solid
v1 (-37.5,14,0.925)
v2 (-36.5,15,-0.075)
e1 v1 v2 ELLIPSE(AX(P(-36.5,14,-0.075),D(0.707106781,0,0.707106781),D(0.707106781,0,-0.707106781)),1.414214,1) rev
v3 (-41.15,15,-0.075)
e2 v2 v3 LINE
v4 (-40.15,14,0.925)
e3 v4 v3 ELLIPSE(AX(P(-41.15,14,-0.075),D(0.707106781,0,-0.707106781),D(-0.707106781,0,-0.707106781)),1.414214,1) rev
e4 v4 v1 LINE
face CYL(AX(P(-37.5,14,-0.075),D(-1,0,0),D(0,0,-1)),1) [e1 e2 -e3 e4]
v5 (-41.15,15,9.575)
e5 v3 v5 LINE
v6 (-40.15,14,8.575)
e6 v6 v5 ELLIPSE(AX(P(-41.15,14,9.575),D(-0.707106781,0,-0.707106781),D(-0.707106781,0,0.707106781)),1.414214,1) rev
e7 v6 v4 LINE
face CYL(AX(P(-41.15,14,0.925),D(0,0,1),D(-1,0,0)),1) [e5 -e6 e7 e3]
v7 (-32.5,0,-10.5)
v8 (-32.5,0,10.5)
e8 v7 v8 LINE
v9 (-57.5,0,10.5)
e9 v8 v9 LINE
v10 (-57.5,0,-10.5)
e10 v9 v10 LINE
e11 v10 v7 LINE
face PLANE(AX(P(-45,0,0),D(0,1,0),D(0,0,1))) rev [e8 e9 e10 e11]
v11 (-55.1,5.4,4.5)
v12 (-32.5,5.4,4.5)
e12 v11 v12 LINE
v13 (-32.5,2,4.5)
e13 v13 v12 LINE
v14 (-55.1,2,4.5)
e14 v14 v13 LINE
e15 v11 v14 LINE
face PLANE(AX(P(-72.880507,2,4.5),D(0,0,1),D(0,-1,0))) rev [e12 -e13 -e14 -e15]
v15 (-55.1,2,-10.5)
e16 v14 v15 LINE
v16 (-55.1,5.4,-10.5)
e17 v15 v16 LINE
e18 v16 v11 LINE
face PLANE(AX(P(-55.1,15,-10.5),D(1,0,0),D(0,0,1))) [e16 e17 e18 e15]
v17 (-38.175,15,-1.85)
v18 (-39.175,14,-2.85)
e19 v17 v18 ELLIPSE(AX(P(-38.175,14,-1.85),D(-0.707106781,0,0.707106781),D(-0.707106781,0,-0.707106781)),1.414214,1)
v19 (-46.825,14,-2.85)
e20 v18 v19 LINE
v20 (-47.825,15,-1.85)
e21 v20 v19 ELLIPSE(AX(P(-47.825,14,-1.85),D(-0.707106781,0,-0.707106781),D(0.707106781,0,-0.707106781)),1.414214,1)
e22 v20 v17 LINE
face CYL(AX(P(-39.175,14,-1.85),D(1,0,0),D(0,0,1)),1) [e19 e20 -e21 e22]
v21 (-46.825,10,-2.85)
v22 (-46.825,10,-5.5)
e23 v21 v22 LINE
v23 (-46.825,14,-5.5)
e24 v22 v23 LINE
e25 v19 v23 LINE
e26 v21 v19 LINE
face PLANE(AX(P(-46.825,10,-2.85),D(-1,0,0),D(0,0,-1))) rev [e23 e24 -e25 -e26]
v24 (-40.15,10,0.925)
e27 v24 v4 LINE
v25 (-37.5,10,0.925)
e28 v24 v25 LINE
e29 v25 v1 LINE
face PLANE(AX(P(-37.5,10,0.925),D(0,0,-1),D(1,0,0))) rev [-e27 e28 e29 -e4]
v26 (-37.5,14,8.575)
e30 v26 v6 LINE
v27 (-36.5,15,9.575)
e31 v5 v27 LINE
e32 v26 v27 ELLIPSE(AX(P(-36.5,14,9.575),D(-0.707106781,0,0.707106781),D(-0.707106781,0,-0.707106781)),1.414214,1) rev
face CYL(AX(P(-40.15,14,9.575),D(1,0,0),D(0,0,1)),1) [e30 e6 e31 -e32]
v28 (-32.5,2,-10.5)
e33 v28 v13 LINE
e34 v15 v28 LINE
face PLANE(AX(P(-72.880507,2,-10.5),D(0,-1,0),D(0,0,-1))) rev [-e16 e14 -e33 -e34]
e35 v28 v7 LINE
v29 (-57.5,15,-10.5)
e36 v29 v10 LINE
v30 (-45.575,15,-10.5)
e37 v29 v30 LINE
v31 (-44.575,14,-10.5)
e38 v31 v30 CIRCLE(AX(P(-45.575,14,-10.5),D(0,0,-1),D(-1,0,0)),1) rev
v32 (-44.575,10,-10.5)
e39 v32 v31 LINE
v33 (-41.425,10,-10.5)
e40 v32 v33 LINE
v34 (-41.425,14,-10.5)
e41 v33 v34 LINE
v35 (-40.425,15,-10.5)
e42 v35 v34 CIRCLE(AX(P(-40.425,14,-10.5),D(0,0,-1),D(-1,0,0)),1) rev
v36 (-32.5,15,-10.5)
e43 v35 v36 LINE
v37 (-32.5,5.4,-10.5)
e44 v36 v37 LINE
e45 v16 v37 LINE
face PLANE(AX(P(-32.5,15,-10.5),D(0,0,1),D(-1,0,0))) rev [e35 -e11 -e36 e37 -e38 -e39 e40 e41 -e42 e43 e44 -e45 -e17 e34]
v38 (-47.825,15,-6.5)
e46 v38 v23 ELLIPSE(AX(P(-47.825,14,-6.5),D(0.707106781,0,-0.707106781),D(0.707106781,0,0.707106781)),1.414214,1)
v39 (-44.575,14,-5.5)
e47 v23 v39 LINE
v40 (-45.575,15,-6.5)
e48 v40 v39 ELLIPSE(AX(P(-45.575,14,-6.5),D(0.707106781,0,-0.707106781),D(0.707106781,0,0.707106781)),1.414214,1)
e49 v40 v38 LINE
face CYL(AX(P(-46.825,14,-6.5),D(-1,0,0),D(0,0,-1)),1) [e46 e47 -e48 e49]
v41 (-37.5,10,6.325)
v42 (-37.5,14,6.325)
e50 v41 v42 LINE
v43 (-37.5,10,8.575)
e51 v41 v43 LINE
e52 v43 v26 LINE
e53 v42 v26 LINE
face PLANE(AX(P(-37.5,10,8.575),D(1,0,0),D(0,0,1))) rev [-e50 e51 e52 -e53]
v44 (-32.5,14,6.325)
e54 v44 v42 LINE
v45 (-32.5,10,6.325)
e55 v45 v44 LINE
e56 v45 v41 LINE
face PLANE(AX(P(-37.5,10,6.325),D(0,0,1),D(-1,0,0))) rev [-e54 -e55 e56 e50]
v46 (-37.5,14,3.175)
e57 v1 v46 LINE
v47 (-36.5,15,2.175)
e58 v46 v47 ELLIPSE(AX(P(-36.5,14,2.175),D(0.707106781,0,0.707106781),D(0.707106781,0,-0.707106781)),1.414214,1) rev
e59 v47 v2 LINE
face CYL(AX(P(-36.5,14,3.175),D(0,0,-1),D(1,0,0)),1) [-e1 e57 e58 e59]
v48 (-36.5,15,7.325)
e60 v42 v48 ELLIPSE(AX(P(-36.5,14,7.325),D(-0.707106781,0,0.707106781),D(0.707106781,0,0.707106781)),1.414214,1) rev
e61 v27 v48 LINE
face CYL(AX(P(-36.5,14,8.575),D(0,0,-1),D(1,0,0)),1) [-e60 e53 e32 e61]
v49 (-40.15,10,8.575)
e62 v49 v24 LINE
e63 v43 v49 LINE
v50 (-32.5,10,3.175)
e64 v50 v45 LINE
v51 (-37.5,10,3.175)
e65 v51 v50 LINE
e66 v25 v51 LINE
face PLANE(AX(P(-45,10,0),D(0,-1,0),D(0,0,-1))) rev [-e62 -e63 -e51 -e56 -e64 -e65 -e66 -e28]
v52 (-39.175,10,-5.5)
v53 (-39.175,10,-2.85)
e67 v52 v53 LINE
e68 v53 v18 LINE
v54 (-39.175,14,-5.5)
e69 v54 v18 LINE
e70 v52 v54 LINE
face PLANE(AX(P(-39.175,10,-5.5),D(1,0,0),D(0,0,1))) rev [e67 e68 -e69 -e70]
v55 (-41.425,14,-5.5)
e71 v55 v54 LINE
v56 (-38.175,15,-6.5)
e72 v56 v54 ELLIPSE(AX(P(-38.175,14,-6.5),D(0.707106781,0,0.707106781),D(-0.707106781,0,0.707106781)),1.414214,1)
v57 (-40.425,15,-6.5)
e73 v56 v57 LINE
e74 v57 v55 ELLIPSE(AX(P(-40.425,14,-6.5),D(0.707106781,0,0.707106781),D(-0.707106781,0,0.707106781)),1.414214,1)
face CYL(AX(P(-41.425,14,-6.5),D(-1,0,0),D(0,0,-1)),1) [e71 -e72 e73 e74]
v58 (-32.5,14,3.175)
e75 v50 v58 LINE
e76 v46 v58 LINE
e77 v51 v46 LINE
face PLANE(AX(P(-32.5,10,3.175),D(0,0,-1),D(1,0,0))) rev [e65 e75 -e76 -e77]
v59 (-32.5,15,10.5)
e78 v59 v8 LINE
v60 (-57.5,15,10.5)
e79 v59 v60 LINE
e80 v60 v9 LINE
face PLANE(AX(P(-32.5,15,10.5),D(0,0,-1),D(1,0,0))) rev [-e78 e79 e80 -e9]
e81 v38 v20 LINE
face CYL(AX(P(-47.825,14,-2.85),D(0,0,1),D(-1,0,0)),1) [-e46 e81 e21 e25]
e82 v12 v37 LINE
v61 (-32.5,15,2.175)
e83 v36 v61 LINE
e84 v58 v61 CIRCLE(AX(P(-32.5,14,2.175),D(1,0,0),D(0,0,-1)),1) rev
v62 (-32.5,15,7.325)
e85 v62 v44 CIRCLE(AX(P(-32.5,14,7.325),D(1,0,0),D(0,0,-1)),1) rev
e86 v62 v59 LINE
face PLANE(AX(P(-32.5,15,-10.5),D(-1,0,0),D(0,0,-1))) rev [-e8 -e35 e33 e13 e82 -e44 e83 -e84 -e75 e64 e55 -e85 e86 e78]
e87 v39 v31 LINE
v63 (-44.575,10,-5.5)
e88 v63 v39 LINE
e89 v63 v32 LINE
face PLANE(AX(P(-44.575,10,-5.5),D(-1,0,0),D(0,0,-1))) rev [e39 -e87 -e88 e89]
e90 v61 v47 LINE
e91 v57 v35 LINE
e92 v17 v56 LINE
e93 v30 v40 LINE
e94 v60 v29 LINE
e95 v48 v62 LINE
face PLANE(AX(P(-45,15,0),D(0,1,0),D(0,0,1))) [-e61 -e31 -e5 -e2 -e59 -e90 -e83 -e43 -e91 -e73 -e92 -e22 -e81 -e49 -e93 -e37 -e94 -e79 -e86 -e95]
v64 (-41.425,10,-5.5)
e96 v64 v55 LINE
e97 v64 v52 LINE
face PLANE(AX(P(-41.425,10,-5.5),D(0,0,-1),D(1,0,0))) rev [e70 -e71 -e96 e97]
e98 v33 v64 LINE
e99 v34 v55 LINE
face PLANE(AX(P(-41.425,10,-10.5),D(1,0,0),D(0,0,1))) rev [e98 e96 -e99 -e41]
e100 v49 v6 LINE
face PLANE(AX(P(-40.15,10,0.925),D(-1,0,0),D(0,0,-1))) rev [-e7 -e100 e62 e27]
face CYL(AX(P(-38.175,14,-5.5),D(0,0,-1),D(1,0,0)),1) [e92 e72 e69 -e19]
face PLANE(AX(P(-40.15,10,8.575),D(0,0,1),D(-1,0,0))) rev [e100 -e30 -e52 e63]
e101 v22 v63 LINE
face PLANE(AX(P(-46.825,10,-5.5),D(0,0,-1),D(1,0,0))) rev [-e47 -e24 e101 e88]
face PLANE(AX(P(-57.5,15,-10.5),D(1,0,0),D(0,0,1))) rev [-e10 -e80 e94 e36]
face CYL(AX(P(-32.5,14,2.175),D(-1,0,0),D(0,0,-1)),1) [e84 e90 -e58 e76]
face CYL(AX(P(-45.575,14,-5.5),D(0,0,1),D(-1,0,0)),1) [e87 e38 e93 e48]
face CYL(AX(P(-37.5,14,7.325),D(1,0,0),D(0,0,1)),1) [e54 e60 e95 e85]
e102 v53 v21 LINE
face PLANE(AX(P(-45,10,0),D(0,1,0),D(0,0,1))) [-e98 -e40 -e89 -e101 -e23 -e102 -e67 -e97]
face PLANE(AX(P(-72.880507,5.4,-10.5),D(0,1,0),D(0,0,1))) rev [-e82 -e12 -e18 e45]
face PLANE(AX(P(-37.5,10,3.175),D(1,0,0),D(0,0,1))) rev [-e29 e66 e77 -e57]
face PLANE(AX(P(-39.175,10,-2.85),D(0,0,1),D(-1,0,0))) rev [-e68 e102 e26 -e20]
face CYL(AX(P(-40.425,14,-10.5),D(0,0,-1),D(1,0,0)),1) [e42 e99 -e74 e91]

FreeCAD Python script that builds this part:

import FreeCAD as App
import Part
import Sketcher
Q = App.Units.Quantity


def edges_at(feature, points):
    """Names of the edges that pass closest to the given points."""
    edges = feature.Shape.Edges
    near = lambda p: min(range(len(edges)), key=lambda i: edges[i].distToShape(Part.Vertex(*p))[0])
    return sorted({f"Edge{near(p) + 1}" for p in points})


def add_polygon(sketch, points):
    """Adds a closed chain of lines whose ends are joined by coincident constraints."""
    first, n = sketch.GeometryCount, len(points)
    for a, b in zip(points, points[1:] + points[:1]):
        sketch.addGeometry(Part.LineSegment(App.Vector(*a, 0), App.Vector(*b, 0)), False)
    for i in range(n):
        sketch.addConstraint(Sketcher.Constraint("Coincident", first + i, 2, first + (i + 1) % n, 1))

doc = App.newDocument("Part")
body = doc.addObject("PartDesign::Body", "Body")

sketch1 = doc.addObject("Sketcher::SketchObject", "Sketch")
body.addObject(sketch1)
sketch1.AttachmentSupport = (doc.XZ_Plane, [""])
sketch1.MapMode = "FlatFace"
add_polygon(sketch1, [(-12, -10), (-12, 10), (12, 10), (12, -10)])
sketch1.addConstraint([
    Sketcher.Constraint("Vertical", 0),
    Sketcher.Constraint("Horizontal", 1),
    Sketcher.Constraint("Vertical", 2),
    Sketcher.Constraint("Horizontal", 3),
    Sketcher.Constraint("Symmetric", 0, 2, 2, 2, -1, 1),
    Sketcher.Constraint("DistanceX", 1, 1, 1, 2, Q("25 mm")),
    Sketcher.Constraint("DistanceY", 0, 1, 0, 2, Q("21 mm")),
])
pad1 = doc.addObject("PartDesign::Pad", "Pad")
body.addObject(pad1)
pad1.Profile = sketch1
pad1.Length = 15
pad1.Reversed = True

sketch2 = doc.addObject("Sketcher::SketchObject", "Sketch001")
body.addObject(sketch2)
sketch2.AttachmentSupport = (doc.YZ_Plane, [""])
sketch2.MapMode = "FlatFace"
sketch2.AttachmentOffset = App.Placement(App.Vector(0, 0, -12.5), App.Rotation())
add_polygon(sketch2, [(5.4, -10.5), (2, -10.5), (2, 4.5), (5.4, 4.5)])
sketch2.addConstraint([
    Sketcher.Constraint("Horizontal", 0),
    Sketcher.Constraint("Vertical", 1),
    Sketcher.Constraint("Horizontal", 2),
    Sketcher.Constraint("Vertical", 3),
    Sketcher.Constraint("DistanceY", 1, 1, 1, 2, Q("15 mm")),
    Sketcher.Constraint("DistanceX", 0, 2, 0, 1, Q("3.4 mm")),
    Sketcher.Constraint("DistanceX", -1, 1, 0, 2, Q("2 mm")),
    Sketcher.Constraint("DistanceY", 0, 2, -1, 1, Q("10.5 mm")),
])
pocket1 = doc.addObject("PartDesign::Pocket", "Pocket")
body.addObject(pocket1)
pocket1.Profile = sketch2
pocket1.Length = 22.6
pocket1.Reversed = True

sketch3 = doc.addObject("Sketcher::SketchObject", "Sketch002")
body.addObject(sketch3)
sketch3.AttachmentSupport = (doc.XZ_Plane, [""])
sketch3.MapMode = "FlatFace"
sketch3.AttachmentOffset = App.Placement(App.Vector(0, 0, -15), App.Rotation())
add_polygon(sketch3, [(-4.8, 8.6), (-4.8, 0.9), (-7.5, 0.9), (-7.5, 3.2), (-12.5, 3.2), (-12.5, 6.3), (-7.5, 6.3), (-7.5, 8.6)])
add_polygon(sketch3, [(-3.6, -10.5), (-3.6, -5.5), (-5.8, -5.5), (-5.8, -2.9), (1.8, -2.9), (1.8, -5.5), (-0.4, -5.5), (-0.4, -10.5)])
sketch3.addConstraint([
    Sketcher.Constraint("Vertical", 0),
    Sketcher.Constraint("Horizontal", 1),
    Sketcher.Constraint("Vertical", 2),
    Sketcher.Constraint("Horizontal", 3),
    Sketcher.Constraint("Vertical", 4),
    Sketcher.Constraint("Horizontal", 5),
    Sketcher.Constraint("Vertical", 6),
    Sketcher.Constraint("Horizontal", 7),
    Sketcher.Constraint("Vertical", 8),
    Sketcher.Constraint("Horizontal", 9),
    Sketcher.Constraint("Vertical", 10),
    Sketcher.Constraint("Horizontal", 11),
    Sketcher.Constraint("Vertical", 12),
    Sketcher.Constraint("Horizontal", 13),
    Sketcher.Constraint("Vertical", 14),
    Sketcher.Constraint("Horizontal", 15),
    Sketcher.Constraint("Horizontal", 9, 2, 12, 2),
    Sketcher.Constraint("Vertical", 2, 2, 5, 2),
    Sketcher.Constraint("Equal", 9, 13),
    Sketcher.Constraint("Equal", 11, 0),
    Sketcher.Constraint("Equal", 13, 2),
    Sketcher.Constraint("Equal", 15, 4),
    Sketcher.Constraint("Equal", 5, 8),
    Sketcher.Constraint("Equal", 7, 10),
    Sketcher.Constraint("DistanceX", 3, 2, 3, 1, Q("5 mm")),
    Sketcher.Constraint("DistanceX", 1, 2, 1, 1, Q("2.65 mm")),
    Sketcher.Constraint("DistanceX", 9, 2, 9, 1, Q("2.25 mm")),
    Sketcher.Constraint("DistanceX", 11, 1, 11, 2, Q("7.65 mm")),
    Sketcher.Constraint("DistanceX", 1, 2, -1, 1, Q("7.5 mm")),
    Sketcher.Constraint("DistanceY", 8, 2, -1, 1, Q("5.5 mm")),
    Sketcher.Constraint("DistanceY", -1, 1, 0, 2, Q("0.925 mm")),
    Sketcher.Constraint("DistanceX", 8, 2, -1, 1, Q("3.575 mm")),
])
pocket2 = doc.addObject("PartDesign::Pocket", "Pocket001")
body.addObject(pocket2)
pocket2.Profile = sketch3
pocket2.Length = 5
pocket2.Reversed = True
doc.recompute()

fillet = doc.addObject("PartDesign::Fillet", "Fillet")
body.addObject(fillet)
fillet.Base = (pocket2, edges_at(pocket2, [
    (-6.175, 15, 0.925),
    (-7.5, 15, 2.05),
    (-10, 15, 3.175),
    (-10, 15, 6.325),
    (-7.5, 15, 7.45),
    (-6.175, 15, 8.575),
    (-4.85, 15, 4.75),
    (-3.575, 15, -8),
    (-4.7, 15, -5.5),
    (-5.825, 15, -4.175),
    (-2, 15, -2.85),
    (1.825, 15, -4.175),
    (0.7, 15, -5.5),
    (-0.425, 15, -8),
]))
fillet.Radius = 1
body2 = doc.addObject("PartDesign::Body", "Body001")
doc.recompute()

mirroring = doc.addObject("Part::Mirroring", "Mirroring")
mirroring.Source = body
mirroring.Base = App.Vector(-22.5, 0, 0)
mirroring.Normal = App.Vector(-1, 0, 0)
body2.BaseFeature = mirroring
doc.recompute()
body.Visibility = False
mirroring.Visibility = False

doc.recompute()
